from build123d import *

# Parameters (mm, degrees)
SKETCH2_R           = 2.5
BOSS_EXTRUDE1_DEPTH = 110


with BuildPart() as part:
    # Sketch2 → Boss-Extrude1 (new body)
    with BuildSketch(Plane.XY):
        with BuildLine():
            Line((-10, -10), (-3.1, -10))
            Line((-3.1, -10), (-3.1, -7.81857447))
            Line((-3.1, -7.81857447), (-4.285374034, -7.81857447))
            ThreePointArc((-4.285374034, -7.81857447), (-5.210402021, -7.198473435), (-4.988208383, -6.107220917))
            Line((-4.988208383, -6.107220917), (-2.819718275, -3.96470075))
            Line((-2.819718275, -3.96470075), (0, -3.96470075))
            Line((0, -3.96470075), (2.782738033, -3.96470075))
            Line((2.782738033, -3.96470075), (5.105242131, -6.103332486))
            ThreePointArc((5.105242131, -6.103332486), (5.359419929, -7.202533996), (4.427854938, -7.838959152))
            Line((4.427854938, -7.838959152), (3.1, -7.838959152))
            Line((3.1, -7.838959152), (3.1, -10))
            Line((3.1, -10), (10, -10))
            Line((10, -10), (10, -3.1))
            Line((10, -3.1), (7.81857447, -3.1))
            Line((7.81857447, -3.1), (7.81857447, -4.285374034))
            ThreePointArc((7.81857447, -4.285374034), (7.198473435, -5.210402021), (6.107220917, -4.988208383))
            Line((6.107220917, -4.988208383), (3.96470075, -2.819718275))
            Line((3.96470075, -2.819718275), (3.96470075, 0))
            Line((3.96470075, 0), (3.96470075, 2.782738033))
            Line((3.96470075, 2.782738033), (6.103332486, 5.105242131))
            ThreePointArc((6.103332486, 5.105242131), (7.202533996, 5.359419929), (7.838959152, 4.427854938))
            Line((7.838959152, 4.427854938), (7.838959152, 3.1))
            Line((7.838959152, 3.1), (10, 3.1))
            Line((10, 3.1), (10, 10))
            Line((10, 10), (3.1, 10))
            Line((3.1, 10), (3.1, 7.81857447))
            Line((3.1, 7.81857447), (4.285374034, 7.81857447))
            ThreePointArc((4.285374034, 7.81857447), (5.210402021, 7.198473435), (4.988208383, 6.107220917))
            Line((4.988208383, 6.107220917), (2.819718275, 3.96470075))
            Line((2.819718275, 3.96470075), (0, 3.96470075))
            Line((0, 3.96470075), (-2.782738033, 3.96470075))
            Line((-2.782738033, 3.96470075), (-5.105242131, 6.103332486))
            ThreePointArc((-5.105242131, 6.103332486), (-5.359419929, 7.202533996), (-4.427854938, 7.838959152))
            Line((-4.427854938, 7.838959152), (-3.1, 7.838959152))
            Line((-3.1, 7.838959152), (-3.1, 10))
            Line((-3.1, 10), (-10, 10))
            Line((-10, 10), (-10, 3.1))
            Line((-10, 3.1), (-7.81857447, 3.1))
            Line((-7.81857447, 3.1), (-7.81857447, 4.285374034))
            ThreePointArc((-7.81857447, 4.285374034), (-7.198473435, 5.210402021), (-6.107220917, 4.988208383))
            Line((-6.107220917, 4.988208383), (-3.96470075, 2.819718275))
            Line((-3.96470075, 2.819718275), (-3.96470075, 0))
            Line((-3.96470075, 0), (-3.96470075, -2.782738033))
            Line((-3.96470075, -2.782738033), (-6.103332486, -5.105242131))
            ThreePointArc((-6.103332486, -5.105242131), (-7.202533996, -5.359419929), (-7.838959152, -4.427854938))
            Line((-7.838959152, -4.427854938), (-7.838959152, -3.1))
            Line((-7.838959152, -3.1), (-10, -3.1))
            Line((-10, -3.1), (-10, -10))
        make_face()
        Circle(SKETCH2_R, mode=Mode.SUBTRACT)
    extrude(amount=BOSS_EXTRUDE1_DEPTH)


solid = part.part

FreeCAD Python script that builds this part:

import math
import FreeCAD as App
import Part
import Sketcher
Q = App.Units.Quantity

doc = App.newDocument("Part")
params = doc.addObject("Spreadsheet::Sheet", "Params")
for row, (alias, value) in enumerate([
    ("sketch1_diameter", "5 mm"),
    ("sketch1_radius", "1 mm"),
    ("sketch1_width", "6.9 mm"),
    ("pad1_length", "110 mm"),
], start=1):
    params.set(f"A{row}", alias)
    params.set(f"B{row}", "=" + value)
    params.setAlias(f"B{row}", alias)

body = doc.addObject("PartDesign::Body", "Body")

sketch1 = body.newObject("Sketcher::SketchObject", "Sketch")
sketch1.AttachmentSupport = (doc.getObject("XY_Plane"), [""])
sketch1.MapMode = "FlatFace"
sketch1.addGeometry(Part.LineSegment(App.Vector(-10, -10, 0), App.Vector(-3.1, -10, 0)), False)
sketch1.addGeometry(Part.LineSegment(App.Vector(-3.1, -10, 0), App.Vector(-3.1, -7.818574, 0)), False)
sketch1.addGeometry(Part.LineSegment(App.Vector(-3.1, -7.818574, 0), App.Vector(-4.285374, -7.818574, 0)), False)
sketch1.addGeometry(Part.ArcOfCircle(Part.Circle(App.Vector(-4.285374, -6.818574, 0), App.Vector(0, 0, 1), 1), math.radians(134.654849), math.radians(270)), False)
sketch1.addGeometry(Part.LineSegment(App.Vector(-4.988208, -6.107221, 0), App.Vector(-2.819718, -3.964701, 0)), False)
sketch1.addGeometry(Part.LineSegment(App.Vector(-2.819718, -3.964701, 0), App.Vector(2.782738, -3.964701, 0)), False)
sketch1.addGeometry(Part.LineSegment(App.Vector(2.782738, -3.964701, 0), App.Vector(5.105242, -6.103332, 0)), False)
sketch1.addGeometry(Part.ArcOfCircle(Part.Circle(App.Vector(4.427855, -6.838959, 0), App.Vector(0, 0, 1), 1), math.radians(-90), math.radians(47.360195)), False)
sketch1.addGeometry(Part.LineSegment(App.Vector(4.427855, -7.838959, 0), App.Vector(3.1, -7.838959, 0)), False)
sketch1.addGeometry(Part.LineSegment(App.Vector(3.1, -7.838959, 0), App.Vector(3.1, -10, 0)), False)
sketch1.addGeometry(Part.LineSegment(App.Vector(3.1, -10, 0), App.Vector(10, -10, 0)), False)
sketch1.addGeometry(Part.LineSegment(App.Vector(10, -10, 0), App.Vector(10, -3.1, 0)), False)
sketch1.addGeometry(Part.LineSegment(App.Vector(10, -3.1, 0), App.Vector(7.818574, -3.1, 0)), False)
sketch1.addGeometry(Part.LineSegment(App.Vector(7.818574, -3.1, 0), App.Vector(7.818574, -4.285374, 0)), False)
sketch1.addGeometry(Part.ArcOfCircle(Part.Circle(App.Vector(6.818574, -4.285374, 0), App.Vector(0, 0, 1), 1), math.radians(-135.345151), math.radians(0)), False)
sketch1.addGeometry(Part.LineSegment(App.Vector(6.107221, -4.988208, 0), App.Vector(3.964701, -2.819718, 0)), False)
sketch1.addGeometry(Part.LineSegment(App.Vector(3.964701, -2.819718, 0), App.Vector(3.964701, 2.782738, 0)), False)
sketch1.addGeometry(Part.LineSegment(App.Vector(3.964701, 2.782738, 0), App.Vector(6.103332, 5.105242, 0)), False)
sketch1.addGeometry(Part.ArcOfCircle(Part.Circle(App.Vector(6.838959, 4.427855, 0), App.Vector(0, 0, 1), 1), math.radians(0), math.radians(137.360195)), False)
sketch1.addGeometry(Part.LineSegment(App.Vector(7.838959, 4.427855, 0), App.Vector(7.838959, 3.1, 0)), False)
sketch1.addGeometry(Part.LineSegment(App.Vector(7.838959, 3.1, 0), App.Vector(10, 3.1, 0)), False)
sketch1.addGeometry(Part.LineSegment(App.Vector(10, 3.1, 0), App.Vector(10, 10, 0)), False)
sketch1.addGeometry(Part.LineSegment(App.Vector(10, 10, 0), App.Vector(3.1, 10, 0)), False)
sketch1.addGeometry(Part.LineSegment(App.Vector(3.1, 10, 0), App.Vector(3.1, 7.818574, 0)), False)
sketch1.addGeometry(Part.LineSegment(App.Vector(3.1, 7.818574, 0), App.Vector(4.285374, 7.818574, 0)), False)
sketch1.addGeometry(Part.ArcOfCircle(Part.Circle(App.Vector(4.285374, 6.818574, 0), App.Vector(0, 0, 1), 1), math.radians(-45.345151), math.radians(90)), False)
sketch1.addGeometry(Part.LineSegment(App.Vector(4.988208, 6.107221, 0), App.Vector(2.819718, 3.964701, 0)), False)
sketch1.addGeometry(Part.LineSegment(App.Vector(2.819718, 3.964701, 0), App.Vector(-2.782738, 3.964701, 0)), False)
sketch1.addGeometry(Part.LineSegment(App.Vector(-2.782738, 3.964701, 0), App.Vector(-5.105242, 6.103332, 0)), False)
sketch1.addGeometry(Part.ArcOfCircle(Part.Circle(App.Vector(-4.427855, 6.838959, 0), App.Vector(0, 0, 1), 1), math.radians(90), math.radians(227.360195)), False)
sketch1.addGeometry(Part.LineSegment(App.Vector(-4.427855, 7.838959, 0), App.Vector(-3.1, 7.838959, 0)), False)
sketch1.addGeometry(Part.LineSegment(App.Vector(-3.1, 7.838959, 0), App.Vector(-3.1, 10, 0)), False)
sketch1.addGeometry(Part.LineSegment(App.Vector(-3.1, 10, 0), App.Vector(-10, 10, 0)), False)
sketch1.addGeometry(Part.LineSegment(App.Vector(-10, 10, 0), App.Vector(-10, 3.1, 0)), False)
sketch1.addGeometry(Part.LineSegment(App.Vector(-10, 3.1, 0), App.Vector(-7.818574, 3.1, 0)), False)
sketch1.addGeometry(Part.LineSegment(App.Vector(-7.818574, 3.1, 0), App.Vector(-7.818574, 4.285374, 0)), False)
sketch1.addGeometry(Part.ArcOfCircle(Part.Circle(App.Vector(-6.818574, 4.285374, 0), App.Vector(0, 0, 1), 1), math.radians(44.654849), math.radians(180)), False)
sketch1.addGeometry(Part.LineSegment(App.Vector(-6.107221, 4.988208, 0), App.Vector(-3.964701, 2.819718, 0)), False)
sketch1.addGeometry(Part.LineSegment(App.Vector(-3.964701, 2.819718, 0), App.Vector(-3.964701, -2.782738, 0)), False)
sketch1.addGeometry(Part.LineSegment(App.Vector(-3.964701, -2.782738, 0), App.Vector(-6.103332, -5.105242, 0)), False)
sketch1.addGeometry(Part.ArcOfCircle(Part.Circle(App.Vector(-6.838959, -4.427855, 0), App.Vector(0, 0, 1), 1), math.radians(-180), math.radians(-42.639805)), False)
sketch1.addGeometry(Part.LineSegment(App.Vector(-7.838959, -4.427855, 0), App.Vector(-7.838959, -3.1, 0)), False)
sketch1.addGeometry(Part.LineSegment(App.Vector(-7.838959, -3.1, 0), App.Vector(-10, -3.1, 0)), False)
sketch1.addGeometry(Part.LineSegment(App.Vector(-10, -3.1, 0), App.Vector(-10, -10, 0)), False)
sketch1.addGeometry(Part.Circle(App.Vector(0, 0, 0), App.Vector(0, 0, 1), 2.5), False)
sketch1.addConstraint(Sketcher.Constraint("Coincident", 0, 2, 1, 1))
sketch1.addConstraint(Sketcher.Constraint("Coincident", 1, 2, 2, 1))
sketch1.addConstraint(Sketcher.Constraint("Tangent", 2, 2, 3, 2))
sketch1.addConstraint(Sketcher.Constraint("Tangent", 3, 1, 4, 1))
sketch1.addConstraint(Sketcher.Constraint("Coincident", 4, 2, 5, 1))
sketch1.addConstraint(Sketcher.Constraint("Coincident", 5, 2, 6, 1))
sketch1.addConstraint(Sketcher.Constraint("Tangent", 6, 2, 7, 2))
sketch1.addConstraint(Sketcher.Constraint("Tangent", 7, 1, 8, 1))
sketch1.addConstraint(Sketcher.Constraint("Coincident", 8, 2, 9, 1))
sketch1.addConstraint(Sketcher.Constraint("Coincident", 9, 2, 10, 1))
sketch1.addConstraint(Sketcher.Constraint("Coincident", 10, 2, 11, 1))
sketch1.addConstraint(Sketcher.Constraint("Coincident", 11, 2, 12, 1))
sketch1.addConstraint(Sketcher.Constraint("Coincident", 12, 2, 13, 1))
sketch1.addConstraint(Sketcher.Constraint("Tangent", 13, 2, 14, 2))
sketch1.addConstraint(Sketcher.Constraint("Tangent", 14, 1, 15, 1))
sketch1.addConstraint(Sketcher.Constraint("Coincident", 15, 2, 16, 1))
sketch1.addConstraint(Sketcher.Constraint("Coincident", 16, 2, 17, 1))
sketch1.addConstraint(Sketcher.Constraint("Tangent", 17, 2, 18, 2))
sketch1.addConstraint(Sketcher.Constraint("Tangent", 18, 1, 19, 1))
sketch1.addConstraint(Sketcher.Constraint("Coincident", 19, 2, 20, 1))
sketch1.addConstraint(Sketcher.Constraint("Coincident", 20, 2, 21, 1))
sketch1.addConstraint(Sketcher.Constraint("Coincident", 21, 2, 22, 1))
sketch1.addConstraint(Sketcher.Constraint("Coincident", 22, 2, 23, 1))
sketch1.addConstraint(Sketcher.Constraint("Coincident", 23, 2, 24, 1))
sketch1.addConstraint(Sketcher.Constraint("Tangent", 24, 2, 25, 2))
sketch1.addConstraint(Sketcher.Constraint("Tangent", 25, 1, 26, 1))
sketch1.addConstraint(Sketcher.Constraint("Coincident", 26, 2, 27, 1))
sketch1.addConstraint(Sketcher.Constraint("Coincident", 27, 2, 28, 1))
sketch1.addConstraint(Sketcher.Constraint("Tangent", 28, 2, 29, 2))
sketch1.addConstraint(Sketcher.Constraint("Tangent", 29, 1, 30, 1))
sketch1.addConstraint(Sketcher.Constraint("Coincident", 30, 2, 31, 1))
sketch1.addConstraint(Sketcher.Constraint("Coincident", 31, 2, 32, 1))
sketch1.addConstraint(Sketcher.Constraint("Coincident", 32, 2, 33, 1))
sketch1.addConstraint(Sketcher.Constraint("Coincident", 33, 2, 34, 1))
sketch1.addConstraint(Sketcher.Constraint("Coincident", 34, 2, 35, 1))
sketch1.addConstraint(Sketcher.Constraint("Tangent", 35, 2, 36, 2))
sketch1.addConstraint(Sketcher.Constraint("Tangent", 36, 1, 37, 1))
sketch1.addConstraint(Sketcher.Constraint("Coincident", 37, 2, 38, 1))
sketch1.addConstraint(Sketcher.Constraint("Coincident", 38, 2, 39, 1))
sketch1.addConstraint(Sketcher.Constraint("Tangent", 39, 2, 40, 2))
sketch1.addConstraint(Sketcher.Constraint("Tangent", 40, 1, 41, 1))
sketch1.addConstraint(Sketcher.Constraint("Coincident", 41, 2, 42, 1))
sketch1.addConstraint(Sketcher.Constraint("Coincident", 42, 2, 43, 1))
sketch1.addConstraint(Sketcher.Constraint("Coincident", 43, 2, 0, 1))
sketch1.addConstraint(Sketcher.Constraint("Horizontal", 0))
sketch1.addConstraint(Sketcher.Constraint("Vertical", 1))
sketch1.addConstraint(Sketcher.Constraint("Horizontal", 2))
sketch1.addConstraint(Sketcher.Constraint("Horizontal", 5))
sketch1.addConstraint(Sketcher.Constraint("Horizontal", 8))
sketch1.addConstraint(Sketcher.Constraint("Vertical", 9))
sketch1.addConstraint(Sketcher.Constraint("Horizontal", 10))
sketch1.addConstraint(Sketcher.Constraint("Vertical", 11))
sketch1.addConstraint(Sketcher.Constraint("Horizontal", 12))
sketch1.addConstraint(Sketcher.Constraint("Vertical", 13))
sketch1.addConstraint(Sketcher.Constraint("Vertical", 16))
sketch1.addConstraint(Sketcher.Constraint("Vertical", 19))
sketch1.addConstraint(Sketcher.Constraint("Horizontal", 20))
sketch1.addConstraint(Sketcher.Constraint("Vertical", 21))
sketch1.addConstraint(Sketcher.Constraint("Horizontal", 22))
sketch1.addConstraint(Sketcher.Constraint("Vertical", 23))
sketch1.addConstraint(Sketcher.Constraint("Horizontal", 24))
sketch1.addConstraint(Sketcher.Constraint("Horizontal", 27))
sketch1.addConstraint(Sketcher.Constraint("Horizontal", 30))
sketch1.addConstraint(Sketcher.Constraint("Vertical", 31))
sketch1.addConstraint(Sketcher.Constraint("Horizontal", 32))
sketch1.addConstraint(Sketcher.Constraint("Vertical", 33))
sketch1.addConstraint(Sketcher.Constraint("Horizontal", 34))
sketch1.addConstraint(Sketcher.Constraint("Vertical", 35))
sketch1.addConstraint(Sketcher.Constraint("Vertical", 38))
sketch1.addConstraint(Sketcher.Constraint("Vertical", 41))
sketch1.addConstraint(Sketcher.Constraint("Horizontal", 42))
sketch1.addConstraint(Sketcher.Constraint("Vertical", 43))
sketch1.addConstraint(Sketcher.Constraint("Coincident", 44, 3, -1, 1))
sketch1.addConstraint(Sketcher.Constraint("Equal", 3, 7))
sketch1.addConstraint(Sketcher.Constraint("Equal", 7, 14))
sketch1.addConstraint(Sketcher.Constraint("Equal", 14, 18))
sketch1.addConstraint(Sketcher.Constraint("Equal", 18, 25))
sketch1.addConstraint(Sketcher.Constraint("Equal", 25, 29))
sketch1.addConstraint(Sketcher.Constraint("Equal", 29, 36))
sketch1.addConstraint(Sketcher.Constraint("Equal", 36, 40))
sketch1.addConstraint(Sketcher.Constraint("Symmetric", 3, 3, 25, 3, -1, 1))
sketch1.addConstraint(Sketcher.Constraint("Symmetric", 7, 3, 29, 3, -1, 1))
sketch1.addConstraint(Sketcher.Constraint("Symmetric", 14, 3, 36, 3, -1, 1))
sketch1.addConstraint(Sketcher.Constraint("Symmetric", 18, 3, 40, 3, -1, 1))
sketch1.addConstraint(Sketcher.Constraint("Symmetric", 0, 2, 22, 2, -1, 1))
sketch1.addConstraint(Sketcher.Constraint("Symmetric", 4, 2, 26, 2, -1, 1))
sketch1.addConstraint(Sketcher.Constraint("Symmetric", 9, 2, 31, 2, -1, 1))
sketch1.addConstraint(Sketcher.Constraint("Symmetric", 11, 2, 33, 2, -1, 1))
sketch1.addConstraint(Sketcher.Constraint("Symmetric", 15, 2, 37, 2, -1, 1))
sketch1.addConstraint(Sketcher.Constraint("Symmetric", 20, 2, 42, 2, -1, 1))
sketch1.addConstraint(Sketcher.Constraint("Symmetric", 0, 2, 9, 2, -2))
sketch1.addConstraint(Sketcher.Constraint("Symmetric", 20, 2, 33, 2, -2))
sketch1.addConstraint(Sketcher.Constraint("Perpendicular", 4, 15))
sketch1.addConstraint(Sketcher.Constraint("Perpendicular", 6, 17))
sketch1.addConstraint(Sketcher.Constraint("Perpendicular", 17, 28))
sketch1.addConstraint(Sketcher.Constraint("Perpendicular", 28, 39))
sketch1.addConstraint(Sketcher.Constraint("Equal", 34, 1))
sketch1.addConstraint(Sketcher.Constraint("Equal", 42, 9))
sketch1.addConstraint(Sketcher.Constraint("Equal", 32, 11))
sketch1.addConstraint(Sketcher.Constraint("Equal", 24, 13))
sketch1.addConstraint(Sketcher.Constraint("Equal", 27, 16))
sketch1.addConstraint(Sketcher.Constraint("Equal", 30, 19))
sketch1.addConstraint(Sketcher.Constraint("Equal", 4, 15))
sketch1.addConstraint(Sketcher.Constraint("Diameter", 44, Q("5 mm")))
sketch1.addConstraint(Sketcher.Constraint("Radius", 3, Q("1 mm")))
sketch1.addConstraint(Sketcher.Constraint("DistanceX", 0, 1, 0, 2, Q("6.9 mm")))
sketch1.addConstraint(Sketcher.Constraint("DistanceY", 0, 2, -1, 1, Q("10 mm")))
sketch1.addConstraint(Sketcher.Constraint("Distance", 4, Q("3.0484 mm")))
sketch1.addConstraint(Sketcher.Constraint("DistanceX", 20, 1, 20, 2, Q("2.161041 mm")))
sketch1.addConstraint(Sketcher.Constraint("DistanceY", 4, 2, -1, 1, Q("3.964701 mm")))
sketch1.addConstraint(Sketcher.Constraint("DistanceY", 3, 3, 14, 3, Q("2.5332 mm")))
sketch1.addConstraint(Sketcher.Constraint("DistanceX", 2, 2, 2, 1, Q("1.185374 mm")))
sketch1.addConstraint(Sketcher.Constraint("DistanceX", 5, 1, 5, 2, Q("5.602456 mm")))
sketch1.addConstraint(Sketcher.Constraint("DistanceX", 8, 2, 8, 1, Q("1.327855 mm")))
sketch1.setExpression("Constraints[103]", "Params.sketch1_diameter")
sketch1.setExpression("Constraints[104]", "Params.sketch1_radius")
sketch1.setExpression("Constraints[105]", "Params.sketch1_width")
pad1 = body.newObject("PartDesign::Pad", "Pad")
pad1.Profile = sketch1
pad1.setExpression("Length", "Params.pad1_length")

doc.recompute()
